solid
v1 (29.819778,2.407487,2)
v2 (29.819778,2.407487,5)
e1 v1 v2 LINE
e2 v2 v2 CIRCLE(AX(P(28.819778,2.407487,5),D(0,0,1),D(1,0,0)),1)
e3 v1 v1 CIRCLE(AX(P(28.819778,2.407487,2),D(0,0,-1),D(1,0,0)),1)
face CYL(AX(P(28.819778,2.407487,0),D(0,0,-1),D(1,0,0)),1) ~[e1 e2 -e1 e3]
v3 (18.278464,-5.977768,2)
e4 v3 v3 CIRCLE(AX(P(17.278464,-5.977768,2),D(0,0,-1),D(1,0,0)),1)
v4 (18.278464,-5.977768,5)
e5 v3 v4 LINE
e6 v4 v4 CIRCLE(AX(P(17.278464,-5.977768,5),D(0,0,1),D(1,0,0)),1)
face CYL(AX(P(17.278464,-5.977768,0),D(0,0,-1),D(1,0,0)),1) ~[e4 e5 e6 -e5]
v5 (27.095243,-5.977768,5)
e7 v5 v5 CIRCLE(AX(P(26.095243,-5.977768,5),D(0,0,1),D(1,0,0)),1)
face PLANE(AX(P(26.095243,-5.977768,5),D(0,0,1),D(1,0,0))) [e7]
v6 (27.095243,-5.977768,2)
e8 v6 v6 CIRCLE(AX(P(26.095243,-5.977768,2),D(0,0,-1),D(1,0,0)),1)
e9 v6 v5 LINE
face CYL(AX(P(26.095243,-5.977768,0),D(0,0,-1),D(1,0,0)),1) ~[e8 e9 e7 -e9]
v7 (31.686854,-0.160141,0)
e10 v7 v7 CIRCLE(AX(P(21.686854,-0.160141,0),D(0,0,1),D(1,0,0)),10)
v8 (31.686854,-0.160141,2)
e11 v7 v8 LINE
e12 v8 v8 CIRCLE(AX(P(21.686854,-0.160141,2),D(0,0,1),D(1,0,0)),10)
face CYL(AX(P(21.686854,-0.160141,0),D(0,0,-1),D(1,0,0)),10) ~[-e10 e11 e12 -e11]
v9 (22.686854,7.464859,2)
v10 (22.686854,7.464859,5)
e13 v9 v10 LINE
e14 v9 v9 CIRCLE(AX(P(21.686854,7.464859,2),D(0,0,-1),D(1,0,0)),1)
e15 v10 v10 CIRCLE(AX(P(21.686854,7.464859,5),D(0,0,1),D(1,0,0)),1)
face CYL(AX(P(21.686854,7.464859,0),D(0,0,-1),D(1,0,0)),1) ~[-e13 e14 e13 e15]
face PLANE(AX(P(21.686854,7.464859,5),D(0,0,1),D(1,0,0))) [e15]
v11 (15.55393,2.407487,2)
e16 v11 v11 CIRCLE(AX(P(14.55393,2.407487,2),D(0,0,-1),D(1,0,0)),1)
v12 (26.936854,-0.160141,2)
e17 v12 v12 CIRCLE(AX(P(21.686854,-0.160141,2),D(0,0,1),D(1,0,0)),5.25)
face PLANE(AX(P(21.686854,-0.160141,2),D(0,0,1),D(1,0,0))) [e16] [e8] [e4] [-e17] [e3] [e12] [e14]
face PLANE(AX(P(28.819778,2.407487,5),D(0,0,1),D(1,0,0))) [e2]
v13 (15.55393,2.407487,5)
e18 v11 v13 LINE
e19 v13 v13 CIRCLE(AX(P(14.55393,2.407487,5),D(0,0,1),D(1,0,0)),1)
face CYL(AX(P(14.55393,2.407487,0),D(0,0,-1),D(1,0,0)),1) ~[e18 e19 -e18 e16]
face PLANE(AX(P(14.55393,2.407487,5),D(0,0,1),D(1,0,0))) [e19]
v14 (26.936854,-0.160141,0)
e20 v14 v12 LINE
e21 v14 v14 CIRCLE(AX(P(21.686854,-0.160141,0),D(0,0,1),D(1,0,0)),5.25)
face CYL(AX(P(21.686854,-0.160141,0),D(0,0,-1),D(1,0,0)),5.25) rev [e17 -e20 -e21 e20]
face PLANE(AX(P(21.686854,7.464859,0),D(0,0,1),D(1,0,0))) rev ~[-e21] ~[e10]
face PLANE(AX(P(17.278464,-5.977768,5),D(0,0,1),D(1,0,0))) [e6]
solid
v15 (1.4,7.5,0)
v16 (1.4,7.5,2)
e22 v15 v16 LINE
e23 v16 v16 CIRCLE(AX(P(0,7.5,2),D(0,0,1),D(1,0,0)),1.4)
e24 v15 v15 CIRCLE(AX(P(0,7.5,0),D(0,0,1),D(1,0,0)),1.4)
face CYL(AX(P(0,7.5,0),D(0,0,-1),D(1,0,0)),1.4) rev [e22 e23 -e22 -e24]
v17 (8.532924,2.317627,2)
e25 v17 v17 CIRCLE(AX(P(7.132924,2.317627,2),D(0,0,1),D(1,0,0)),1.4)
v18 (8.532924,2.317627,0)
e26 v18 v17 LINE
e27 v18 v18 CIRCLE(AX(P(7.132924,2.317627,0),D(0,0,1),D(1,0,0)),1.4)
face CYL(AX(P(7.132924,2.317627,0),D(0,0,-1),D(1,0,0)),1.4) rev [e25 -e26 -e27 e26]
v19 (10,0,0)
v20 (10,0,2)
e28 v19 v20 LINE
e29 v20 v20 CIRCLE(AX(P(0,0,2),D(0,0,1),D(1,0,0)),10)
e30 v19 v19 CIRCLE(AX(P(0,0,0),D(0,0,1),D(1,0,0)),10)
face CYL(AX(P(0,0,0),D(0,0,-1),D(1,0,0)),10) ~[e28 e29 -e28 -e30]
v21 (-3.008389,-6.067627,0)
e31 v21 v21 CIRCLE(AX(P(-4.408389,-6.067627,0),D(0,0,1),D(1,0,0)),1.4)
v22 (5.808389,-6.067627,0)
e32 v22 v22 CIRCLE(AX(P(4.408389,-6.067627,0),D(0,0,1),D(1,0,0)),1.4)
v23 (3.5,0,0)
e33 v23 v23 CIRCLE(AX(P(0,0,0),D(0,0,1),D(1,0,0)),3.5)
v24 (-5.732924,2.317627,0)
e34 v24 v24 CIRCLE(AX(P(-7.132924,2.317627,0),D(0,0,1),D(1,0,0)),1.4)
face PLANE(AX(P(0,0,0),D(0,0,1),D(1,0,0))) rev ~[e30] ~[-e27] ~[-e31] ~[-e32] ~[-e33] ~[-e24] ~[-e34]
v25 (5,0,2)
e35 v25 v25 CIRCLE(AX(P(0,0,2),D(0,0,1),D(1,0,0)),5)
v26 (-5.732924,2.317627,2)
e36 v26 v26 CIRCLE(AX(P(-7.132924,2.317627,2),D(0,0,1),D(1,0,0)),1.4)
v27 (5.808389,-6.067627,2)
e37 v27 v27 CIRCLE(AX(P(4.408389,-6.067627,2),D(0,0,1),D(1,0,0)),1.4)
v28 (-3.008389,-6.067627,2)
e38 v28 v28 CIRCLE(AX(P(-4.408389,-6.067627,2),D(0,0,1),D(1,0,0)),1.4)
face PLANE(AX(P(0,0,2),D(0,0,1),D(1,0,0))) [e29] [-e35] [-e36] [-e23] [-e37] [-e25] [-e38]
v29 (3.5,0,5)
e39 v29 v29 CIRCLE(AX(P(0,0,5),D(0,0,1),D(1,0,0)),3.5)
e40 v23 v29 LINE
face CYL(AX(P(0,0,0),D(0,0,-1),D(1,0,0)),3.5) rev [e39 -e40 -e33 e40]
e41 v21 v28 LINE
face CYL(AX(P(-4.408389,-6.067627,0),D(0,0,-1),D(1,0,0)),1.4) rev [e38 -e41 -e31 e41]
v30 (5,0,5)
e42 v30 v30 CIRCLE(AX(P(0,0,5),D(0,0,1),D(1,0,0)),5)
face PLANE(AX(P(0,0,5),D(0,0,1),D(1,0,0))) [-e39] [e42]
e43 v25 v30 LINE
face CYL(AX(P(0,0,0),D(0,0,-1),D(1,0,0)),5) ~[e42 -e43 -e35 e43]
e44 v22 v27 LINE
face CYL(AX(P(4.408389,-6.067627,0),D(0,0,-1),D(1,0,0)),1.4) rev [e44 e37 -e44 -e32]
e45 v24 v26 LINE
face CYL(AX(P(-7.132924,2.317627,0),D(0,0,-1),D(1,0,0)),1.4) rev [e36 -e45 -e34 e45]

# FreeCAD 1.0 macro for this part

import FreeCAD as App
import Part
import Sketcher
Q = App.Units.Quantity

doc = App.newDocument("Part")
params = doc.addObject("Spreadsheet::Sheet", "Params")
for row, (alias, value) in enumerate([
    ("sketch1_diameter", "20 mm"),
    ("sketch1_diameter2", "10 mm"),
    ("sketch1_diameter3", "2.8 mm"),
    ("pad1_length", "2 mm"),
    ("sketch2_diameter", "10 mm"),
    ("sketch2_diameter2", "7 mm"),
    ("pad2_length", "5 mm"),
    ("sketch3_diameter", "20 mm"),
    ("sketch3_diameter2", "10.5 mm"),
    ("pad3_length", "2 mm"),
    ("sketch4_diameter", "2 mm"),
    ("pad4_length", "5 mm"),
], start=1):
    params.set(f"A{row}", alias)
    params.set(f"B{row}", "=" + value)
    params.setAlias(f"B{row}", alias)

body = doc.addObject("PartDesign::Body", "Body")

# Sketch on XY plane
sketch1 = body.newObject("Sketcher::SketchObject", "Sketch")
sketch1.AttachmentSupport = (doc.getObject("XY_Plane"), [""])
sketch1.MapMode = "FlatFace"
sketch1.addGeometry([
    Part.Circle(App.Vector(0, 0, 0), App.Vector(0, 0, 1), 10),  # 0
    Part.Circle(App.Vector(-4.4, -6.1, 0), App.Vector(0, 0, 1), 1.4),  # 1
    Part.Circle(App.Vector(0, 0, 0), App.Vector(0, 0, 1), 5),  # 2
    Part.Circle(App.Vector(4.4, -6.1, 0), App.Vector(0, 0, 1), 1.4),  # 3
    Part.Circle(App.Vector(-7.1, 2.3, 0), App.Vector(0, 0, 1), 1.4),  # 4
    Part.Circle(App.Vector(0, 7.5, 0), App.Vector(0, 0, 1), 1.4),  # 5
    Part.Circle(App.Vector(7.1, 2.3, 0), App.Vector(0, 0, 1), 1.4),  # 6
], False)
sketch1.addConstraint([
    Sketcher.Constraint("Coincident", 0, 3, -1, 1),
    Sketcher.Constraint("Coincident", 2, 3, -1, 1),
    Sketcher.Constraint("Equal", 1, 3),
    Sketcher.Constraint("Equal", 3, 4),
    Sketcher.Constraint("Equal", 4, 5),
    Sketcher.Constraint("Equal", 5, 6),
    Sketcher.Constraint("Symmetric", 1, 3, 3, 3, -2),
    Sketcher.Constraint("Symmetric", 4, 3, 6, 3, -2),
    Sketcher.Constraint("PointOnObject", 5, 3, -2),
    Sketcher.Constraint("Diameter", 0, Q("20 mm")),
    Sketcher.Constraint("Diameter", 2, Q("10 mm")),
    Sketcher.Constraint("Diameter", 1, Q("2.8 mm")),
    Sketcher.Constraint("DistanceY", -1, 1, 5, 3, Q("7.5 mm")),
    Sketcher.Constraint("DistanceX", 1, 3, -1, 1, Q("4.408389 mm")),
    Sketcher.Constraint("DistanceY", 1, 3, -1, 1, Q("6.067627 mm")),
    Sketcher.Constraint("DistanceX", 4, 3, -1, 1, Q("7.132924 mm")),
    Sketcher.Constraint("DistanceY", -1, 1, 4, 3, Q("2.317627 mm")),
])
sketch1.setExpression("Constraints[9]", "Params.sketch1_diameter")
sketch1.setExpression("Constraints[10]", "Params.sketch1_diameter2")
sketch1.setExpression("Constraints[11]", "Params.sketch1_diameter3")
pad1 = body.newObject("PartDesign::Pad", "Pad")
pad1.Profile = sketch1
pad1.setExpression("Length", "Params.pad1_length")

# Sketch on XY plane
sketch2 = body.newObject("Sketcher::SketchObject", "Sketch001")
sketch2.AttachmentSupport = (doc.getObject("XY_Plane"), [""])
sketch2.MapMode = "FlatFace"
sketch2.addGeometry([
    Part.Circle(App.Vector(0, 0, 0), App.Vector(0, 0, 1), 5),
    Part.Circle(App.Vector(0, 0, 0), App.Vector(0, 0, 1), 3.5),
], False)
sketch2.addConstraint([
    Sketcher.Constraint("Coincident", 0, 3, -1, 1),
    Sketcher.Constraint("Coincident", 1, 3, -1, 1),
    Sketcher.Constraint("Diameter", 0, Q("10 mm")),
    Sketcher.Constraint("Diameter", 1, Q("7 mm")),
])
sketch2.setExpression("Constraints[2]", "Params.sketch2_diameter")
sketch2.setExpression("Constraints[3]", "Params.sketch2_diameter2")
pad2 = body.newObject("PartDesign::Pad", "Pad001")
pad2.Profile = sketch2
pad2.setExpression("Length", "Params.pad2_length")
body2 = doc.addObject("PartDesign::Body", "Body001")

# Sketch on XY plane
sketch3 = body2.newObject("Sketcher::SketchObject", "Sketch002")
sketch3.AttachmentSupport = (doc.getObject("XY_Plane001"), [""])
sketch3.MapMode = "FlatFace"
sketch3.addGeometry([
    Part.Circle(App.Vector(22, 0, 0), App.Vector(0, 0, 1), 10),
    Part.Circle(App.Vector(22, 0, 0), App.Vector(0, 0, 1), 5),
], False)
sketch3.addConstraint([
    Sketcher.Constraint("Coincident", 1, 3, 0, 3),
    Sketcher.Constraint("Diameter", 0, Q("20 mm")),
    Sketcher.Constraint("Diameter", 1, Q("10.5 mm")),
    Sketcher.Constraint("DistanceY", 0, 3, -1, 1, Q("0.160141 mm")),
    Sketcher.Constraint("DistanceX", -1, 1, 0, 3, Q("21.686854 mm")),
])
sketch3.setExpression("Constraints[1]", "Params.sketch3_diameter")
sketch3.setExpression("Constraints[2]", "Params.sketch3_diameter2")
pad3 = body2.newObject("PartDesign::Pad", "Pad002")
pad3.Profile = sketch3
pad3.setExpression("Length", "Params.pad3_length")

# Sketch on XY plane
sketch4 = body2.newObject("Sketcher::SketchObject", "Sketch003")
sketch4.AttachmentSupport = (doc.getObject("XY_Plane001"), [""])
sketch4.MapMode = "FlatFace"
sketch4.addGeometry([
    Part.Circle(App.Vector(21.7, 7.5, 0), App.Vector(0, 0, 1), 1),  # 0
    Part.Circle(App.Vector(28.8, 2.4, 0), App.Vector(0, 0, 1), 1),  # 1
    Part.Circle(App.Vector(26.1, -6, 0), App.Vector(0, 0, 1), 1),  # 2
    Part.Circle(App.Vector(17.3, -6, 0), App.Vector(0, 0, 1), 1),  # 3
    Part.Circle(App.Vector(14.6, 2.4, 0), App.Vector(0, 0, 1), 1),  # 4
], False)
sketch4.addConstraint([
    Sketcher.Constraint("Equal", 0, 1),
    Sketcher.Constraint("Equal", 1, 2),
    Sketcher.Constraint("Equal", 2, 3),
    Sketcher.Constraint("Equal", 3, 4),
    Sketcher.Constraint("Horizontal", 2, 3, 3, 3),
    Sketcher.Constraint("Horizontal", 1, 3, 4, 3),
    Sketcher.Constraint("Diameter", 0, Q("2 mm")),
    Sketcher.Constraint("DistanceY", -1, 1, 0, 3, Q("7.464859 mm")),
    Sketcher.Constraint("DistanceY", 2, 3, -1, 1, Q("5.977768 mm")),
    Sketcher.Constraint("DistanceX", -1, 1, 4, 3, Q("14.55393 mm")),
    Sketcher.Constraint("DistanceY", 1, 3, 0, 3, Q("5.057372 mm")),
    Sketcher.Constraint("DistanceX", 0, 3, 2, 3, Q("4.408389 mm")),
    Sketcher.Constraint("DistanceX", 3, 3, 2, 3, Q("8.816779 mm")),
    Sketcher.Constraint("DistanceX", -1, 1, 0, 3, Q("21.686854 mm")),
    Sketcher.Constraint("DistanceX", -1, 1, 1, 3, Q("28.819778 mm")),
])
sketch4.setExpression("Constraints[6]", "Params.sketch4_diameter")
pad4 = body2.newObject("PartDesign::Pad", "Pad003")
pad4.Profile = sketch4
pad4.setExpression("Length", "Params.pad4_length")

doc.recompute()
